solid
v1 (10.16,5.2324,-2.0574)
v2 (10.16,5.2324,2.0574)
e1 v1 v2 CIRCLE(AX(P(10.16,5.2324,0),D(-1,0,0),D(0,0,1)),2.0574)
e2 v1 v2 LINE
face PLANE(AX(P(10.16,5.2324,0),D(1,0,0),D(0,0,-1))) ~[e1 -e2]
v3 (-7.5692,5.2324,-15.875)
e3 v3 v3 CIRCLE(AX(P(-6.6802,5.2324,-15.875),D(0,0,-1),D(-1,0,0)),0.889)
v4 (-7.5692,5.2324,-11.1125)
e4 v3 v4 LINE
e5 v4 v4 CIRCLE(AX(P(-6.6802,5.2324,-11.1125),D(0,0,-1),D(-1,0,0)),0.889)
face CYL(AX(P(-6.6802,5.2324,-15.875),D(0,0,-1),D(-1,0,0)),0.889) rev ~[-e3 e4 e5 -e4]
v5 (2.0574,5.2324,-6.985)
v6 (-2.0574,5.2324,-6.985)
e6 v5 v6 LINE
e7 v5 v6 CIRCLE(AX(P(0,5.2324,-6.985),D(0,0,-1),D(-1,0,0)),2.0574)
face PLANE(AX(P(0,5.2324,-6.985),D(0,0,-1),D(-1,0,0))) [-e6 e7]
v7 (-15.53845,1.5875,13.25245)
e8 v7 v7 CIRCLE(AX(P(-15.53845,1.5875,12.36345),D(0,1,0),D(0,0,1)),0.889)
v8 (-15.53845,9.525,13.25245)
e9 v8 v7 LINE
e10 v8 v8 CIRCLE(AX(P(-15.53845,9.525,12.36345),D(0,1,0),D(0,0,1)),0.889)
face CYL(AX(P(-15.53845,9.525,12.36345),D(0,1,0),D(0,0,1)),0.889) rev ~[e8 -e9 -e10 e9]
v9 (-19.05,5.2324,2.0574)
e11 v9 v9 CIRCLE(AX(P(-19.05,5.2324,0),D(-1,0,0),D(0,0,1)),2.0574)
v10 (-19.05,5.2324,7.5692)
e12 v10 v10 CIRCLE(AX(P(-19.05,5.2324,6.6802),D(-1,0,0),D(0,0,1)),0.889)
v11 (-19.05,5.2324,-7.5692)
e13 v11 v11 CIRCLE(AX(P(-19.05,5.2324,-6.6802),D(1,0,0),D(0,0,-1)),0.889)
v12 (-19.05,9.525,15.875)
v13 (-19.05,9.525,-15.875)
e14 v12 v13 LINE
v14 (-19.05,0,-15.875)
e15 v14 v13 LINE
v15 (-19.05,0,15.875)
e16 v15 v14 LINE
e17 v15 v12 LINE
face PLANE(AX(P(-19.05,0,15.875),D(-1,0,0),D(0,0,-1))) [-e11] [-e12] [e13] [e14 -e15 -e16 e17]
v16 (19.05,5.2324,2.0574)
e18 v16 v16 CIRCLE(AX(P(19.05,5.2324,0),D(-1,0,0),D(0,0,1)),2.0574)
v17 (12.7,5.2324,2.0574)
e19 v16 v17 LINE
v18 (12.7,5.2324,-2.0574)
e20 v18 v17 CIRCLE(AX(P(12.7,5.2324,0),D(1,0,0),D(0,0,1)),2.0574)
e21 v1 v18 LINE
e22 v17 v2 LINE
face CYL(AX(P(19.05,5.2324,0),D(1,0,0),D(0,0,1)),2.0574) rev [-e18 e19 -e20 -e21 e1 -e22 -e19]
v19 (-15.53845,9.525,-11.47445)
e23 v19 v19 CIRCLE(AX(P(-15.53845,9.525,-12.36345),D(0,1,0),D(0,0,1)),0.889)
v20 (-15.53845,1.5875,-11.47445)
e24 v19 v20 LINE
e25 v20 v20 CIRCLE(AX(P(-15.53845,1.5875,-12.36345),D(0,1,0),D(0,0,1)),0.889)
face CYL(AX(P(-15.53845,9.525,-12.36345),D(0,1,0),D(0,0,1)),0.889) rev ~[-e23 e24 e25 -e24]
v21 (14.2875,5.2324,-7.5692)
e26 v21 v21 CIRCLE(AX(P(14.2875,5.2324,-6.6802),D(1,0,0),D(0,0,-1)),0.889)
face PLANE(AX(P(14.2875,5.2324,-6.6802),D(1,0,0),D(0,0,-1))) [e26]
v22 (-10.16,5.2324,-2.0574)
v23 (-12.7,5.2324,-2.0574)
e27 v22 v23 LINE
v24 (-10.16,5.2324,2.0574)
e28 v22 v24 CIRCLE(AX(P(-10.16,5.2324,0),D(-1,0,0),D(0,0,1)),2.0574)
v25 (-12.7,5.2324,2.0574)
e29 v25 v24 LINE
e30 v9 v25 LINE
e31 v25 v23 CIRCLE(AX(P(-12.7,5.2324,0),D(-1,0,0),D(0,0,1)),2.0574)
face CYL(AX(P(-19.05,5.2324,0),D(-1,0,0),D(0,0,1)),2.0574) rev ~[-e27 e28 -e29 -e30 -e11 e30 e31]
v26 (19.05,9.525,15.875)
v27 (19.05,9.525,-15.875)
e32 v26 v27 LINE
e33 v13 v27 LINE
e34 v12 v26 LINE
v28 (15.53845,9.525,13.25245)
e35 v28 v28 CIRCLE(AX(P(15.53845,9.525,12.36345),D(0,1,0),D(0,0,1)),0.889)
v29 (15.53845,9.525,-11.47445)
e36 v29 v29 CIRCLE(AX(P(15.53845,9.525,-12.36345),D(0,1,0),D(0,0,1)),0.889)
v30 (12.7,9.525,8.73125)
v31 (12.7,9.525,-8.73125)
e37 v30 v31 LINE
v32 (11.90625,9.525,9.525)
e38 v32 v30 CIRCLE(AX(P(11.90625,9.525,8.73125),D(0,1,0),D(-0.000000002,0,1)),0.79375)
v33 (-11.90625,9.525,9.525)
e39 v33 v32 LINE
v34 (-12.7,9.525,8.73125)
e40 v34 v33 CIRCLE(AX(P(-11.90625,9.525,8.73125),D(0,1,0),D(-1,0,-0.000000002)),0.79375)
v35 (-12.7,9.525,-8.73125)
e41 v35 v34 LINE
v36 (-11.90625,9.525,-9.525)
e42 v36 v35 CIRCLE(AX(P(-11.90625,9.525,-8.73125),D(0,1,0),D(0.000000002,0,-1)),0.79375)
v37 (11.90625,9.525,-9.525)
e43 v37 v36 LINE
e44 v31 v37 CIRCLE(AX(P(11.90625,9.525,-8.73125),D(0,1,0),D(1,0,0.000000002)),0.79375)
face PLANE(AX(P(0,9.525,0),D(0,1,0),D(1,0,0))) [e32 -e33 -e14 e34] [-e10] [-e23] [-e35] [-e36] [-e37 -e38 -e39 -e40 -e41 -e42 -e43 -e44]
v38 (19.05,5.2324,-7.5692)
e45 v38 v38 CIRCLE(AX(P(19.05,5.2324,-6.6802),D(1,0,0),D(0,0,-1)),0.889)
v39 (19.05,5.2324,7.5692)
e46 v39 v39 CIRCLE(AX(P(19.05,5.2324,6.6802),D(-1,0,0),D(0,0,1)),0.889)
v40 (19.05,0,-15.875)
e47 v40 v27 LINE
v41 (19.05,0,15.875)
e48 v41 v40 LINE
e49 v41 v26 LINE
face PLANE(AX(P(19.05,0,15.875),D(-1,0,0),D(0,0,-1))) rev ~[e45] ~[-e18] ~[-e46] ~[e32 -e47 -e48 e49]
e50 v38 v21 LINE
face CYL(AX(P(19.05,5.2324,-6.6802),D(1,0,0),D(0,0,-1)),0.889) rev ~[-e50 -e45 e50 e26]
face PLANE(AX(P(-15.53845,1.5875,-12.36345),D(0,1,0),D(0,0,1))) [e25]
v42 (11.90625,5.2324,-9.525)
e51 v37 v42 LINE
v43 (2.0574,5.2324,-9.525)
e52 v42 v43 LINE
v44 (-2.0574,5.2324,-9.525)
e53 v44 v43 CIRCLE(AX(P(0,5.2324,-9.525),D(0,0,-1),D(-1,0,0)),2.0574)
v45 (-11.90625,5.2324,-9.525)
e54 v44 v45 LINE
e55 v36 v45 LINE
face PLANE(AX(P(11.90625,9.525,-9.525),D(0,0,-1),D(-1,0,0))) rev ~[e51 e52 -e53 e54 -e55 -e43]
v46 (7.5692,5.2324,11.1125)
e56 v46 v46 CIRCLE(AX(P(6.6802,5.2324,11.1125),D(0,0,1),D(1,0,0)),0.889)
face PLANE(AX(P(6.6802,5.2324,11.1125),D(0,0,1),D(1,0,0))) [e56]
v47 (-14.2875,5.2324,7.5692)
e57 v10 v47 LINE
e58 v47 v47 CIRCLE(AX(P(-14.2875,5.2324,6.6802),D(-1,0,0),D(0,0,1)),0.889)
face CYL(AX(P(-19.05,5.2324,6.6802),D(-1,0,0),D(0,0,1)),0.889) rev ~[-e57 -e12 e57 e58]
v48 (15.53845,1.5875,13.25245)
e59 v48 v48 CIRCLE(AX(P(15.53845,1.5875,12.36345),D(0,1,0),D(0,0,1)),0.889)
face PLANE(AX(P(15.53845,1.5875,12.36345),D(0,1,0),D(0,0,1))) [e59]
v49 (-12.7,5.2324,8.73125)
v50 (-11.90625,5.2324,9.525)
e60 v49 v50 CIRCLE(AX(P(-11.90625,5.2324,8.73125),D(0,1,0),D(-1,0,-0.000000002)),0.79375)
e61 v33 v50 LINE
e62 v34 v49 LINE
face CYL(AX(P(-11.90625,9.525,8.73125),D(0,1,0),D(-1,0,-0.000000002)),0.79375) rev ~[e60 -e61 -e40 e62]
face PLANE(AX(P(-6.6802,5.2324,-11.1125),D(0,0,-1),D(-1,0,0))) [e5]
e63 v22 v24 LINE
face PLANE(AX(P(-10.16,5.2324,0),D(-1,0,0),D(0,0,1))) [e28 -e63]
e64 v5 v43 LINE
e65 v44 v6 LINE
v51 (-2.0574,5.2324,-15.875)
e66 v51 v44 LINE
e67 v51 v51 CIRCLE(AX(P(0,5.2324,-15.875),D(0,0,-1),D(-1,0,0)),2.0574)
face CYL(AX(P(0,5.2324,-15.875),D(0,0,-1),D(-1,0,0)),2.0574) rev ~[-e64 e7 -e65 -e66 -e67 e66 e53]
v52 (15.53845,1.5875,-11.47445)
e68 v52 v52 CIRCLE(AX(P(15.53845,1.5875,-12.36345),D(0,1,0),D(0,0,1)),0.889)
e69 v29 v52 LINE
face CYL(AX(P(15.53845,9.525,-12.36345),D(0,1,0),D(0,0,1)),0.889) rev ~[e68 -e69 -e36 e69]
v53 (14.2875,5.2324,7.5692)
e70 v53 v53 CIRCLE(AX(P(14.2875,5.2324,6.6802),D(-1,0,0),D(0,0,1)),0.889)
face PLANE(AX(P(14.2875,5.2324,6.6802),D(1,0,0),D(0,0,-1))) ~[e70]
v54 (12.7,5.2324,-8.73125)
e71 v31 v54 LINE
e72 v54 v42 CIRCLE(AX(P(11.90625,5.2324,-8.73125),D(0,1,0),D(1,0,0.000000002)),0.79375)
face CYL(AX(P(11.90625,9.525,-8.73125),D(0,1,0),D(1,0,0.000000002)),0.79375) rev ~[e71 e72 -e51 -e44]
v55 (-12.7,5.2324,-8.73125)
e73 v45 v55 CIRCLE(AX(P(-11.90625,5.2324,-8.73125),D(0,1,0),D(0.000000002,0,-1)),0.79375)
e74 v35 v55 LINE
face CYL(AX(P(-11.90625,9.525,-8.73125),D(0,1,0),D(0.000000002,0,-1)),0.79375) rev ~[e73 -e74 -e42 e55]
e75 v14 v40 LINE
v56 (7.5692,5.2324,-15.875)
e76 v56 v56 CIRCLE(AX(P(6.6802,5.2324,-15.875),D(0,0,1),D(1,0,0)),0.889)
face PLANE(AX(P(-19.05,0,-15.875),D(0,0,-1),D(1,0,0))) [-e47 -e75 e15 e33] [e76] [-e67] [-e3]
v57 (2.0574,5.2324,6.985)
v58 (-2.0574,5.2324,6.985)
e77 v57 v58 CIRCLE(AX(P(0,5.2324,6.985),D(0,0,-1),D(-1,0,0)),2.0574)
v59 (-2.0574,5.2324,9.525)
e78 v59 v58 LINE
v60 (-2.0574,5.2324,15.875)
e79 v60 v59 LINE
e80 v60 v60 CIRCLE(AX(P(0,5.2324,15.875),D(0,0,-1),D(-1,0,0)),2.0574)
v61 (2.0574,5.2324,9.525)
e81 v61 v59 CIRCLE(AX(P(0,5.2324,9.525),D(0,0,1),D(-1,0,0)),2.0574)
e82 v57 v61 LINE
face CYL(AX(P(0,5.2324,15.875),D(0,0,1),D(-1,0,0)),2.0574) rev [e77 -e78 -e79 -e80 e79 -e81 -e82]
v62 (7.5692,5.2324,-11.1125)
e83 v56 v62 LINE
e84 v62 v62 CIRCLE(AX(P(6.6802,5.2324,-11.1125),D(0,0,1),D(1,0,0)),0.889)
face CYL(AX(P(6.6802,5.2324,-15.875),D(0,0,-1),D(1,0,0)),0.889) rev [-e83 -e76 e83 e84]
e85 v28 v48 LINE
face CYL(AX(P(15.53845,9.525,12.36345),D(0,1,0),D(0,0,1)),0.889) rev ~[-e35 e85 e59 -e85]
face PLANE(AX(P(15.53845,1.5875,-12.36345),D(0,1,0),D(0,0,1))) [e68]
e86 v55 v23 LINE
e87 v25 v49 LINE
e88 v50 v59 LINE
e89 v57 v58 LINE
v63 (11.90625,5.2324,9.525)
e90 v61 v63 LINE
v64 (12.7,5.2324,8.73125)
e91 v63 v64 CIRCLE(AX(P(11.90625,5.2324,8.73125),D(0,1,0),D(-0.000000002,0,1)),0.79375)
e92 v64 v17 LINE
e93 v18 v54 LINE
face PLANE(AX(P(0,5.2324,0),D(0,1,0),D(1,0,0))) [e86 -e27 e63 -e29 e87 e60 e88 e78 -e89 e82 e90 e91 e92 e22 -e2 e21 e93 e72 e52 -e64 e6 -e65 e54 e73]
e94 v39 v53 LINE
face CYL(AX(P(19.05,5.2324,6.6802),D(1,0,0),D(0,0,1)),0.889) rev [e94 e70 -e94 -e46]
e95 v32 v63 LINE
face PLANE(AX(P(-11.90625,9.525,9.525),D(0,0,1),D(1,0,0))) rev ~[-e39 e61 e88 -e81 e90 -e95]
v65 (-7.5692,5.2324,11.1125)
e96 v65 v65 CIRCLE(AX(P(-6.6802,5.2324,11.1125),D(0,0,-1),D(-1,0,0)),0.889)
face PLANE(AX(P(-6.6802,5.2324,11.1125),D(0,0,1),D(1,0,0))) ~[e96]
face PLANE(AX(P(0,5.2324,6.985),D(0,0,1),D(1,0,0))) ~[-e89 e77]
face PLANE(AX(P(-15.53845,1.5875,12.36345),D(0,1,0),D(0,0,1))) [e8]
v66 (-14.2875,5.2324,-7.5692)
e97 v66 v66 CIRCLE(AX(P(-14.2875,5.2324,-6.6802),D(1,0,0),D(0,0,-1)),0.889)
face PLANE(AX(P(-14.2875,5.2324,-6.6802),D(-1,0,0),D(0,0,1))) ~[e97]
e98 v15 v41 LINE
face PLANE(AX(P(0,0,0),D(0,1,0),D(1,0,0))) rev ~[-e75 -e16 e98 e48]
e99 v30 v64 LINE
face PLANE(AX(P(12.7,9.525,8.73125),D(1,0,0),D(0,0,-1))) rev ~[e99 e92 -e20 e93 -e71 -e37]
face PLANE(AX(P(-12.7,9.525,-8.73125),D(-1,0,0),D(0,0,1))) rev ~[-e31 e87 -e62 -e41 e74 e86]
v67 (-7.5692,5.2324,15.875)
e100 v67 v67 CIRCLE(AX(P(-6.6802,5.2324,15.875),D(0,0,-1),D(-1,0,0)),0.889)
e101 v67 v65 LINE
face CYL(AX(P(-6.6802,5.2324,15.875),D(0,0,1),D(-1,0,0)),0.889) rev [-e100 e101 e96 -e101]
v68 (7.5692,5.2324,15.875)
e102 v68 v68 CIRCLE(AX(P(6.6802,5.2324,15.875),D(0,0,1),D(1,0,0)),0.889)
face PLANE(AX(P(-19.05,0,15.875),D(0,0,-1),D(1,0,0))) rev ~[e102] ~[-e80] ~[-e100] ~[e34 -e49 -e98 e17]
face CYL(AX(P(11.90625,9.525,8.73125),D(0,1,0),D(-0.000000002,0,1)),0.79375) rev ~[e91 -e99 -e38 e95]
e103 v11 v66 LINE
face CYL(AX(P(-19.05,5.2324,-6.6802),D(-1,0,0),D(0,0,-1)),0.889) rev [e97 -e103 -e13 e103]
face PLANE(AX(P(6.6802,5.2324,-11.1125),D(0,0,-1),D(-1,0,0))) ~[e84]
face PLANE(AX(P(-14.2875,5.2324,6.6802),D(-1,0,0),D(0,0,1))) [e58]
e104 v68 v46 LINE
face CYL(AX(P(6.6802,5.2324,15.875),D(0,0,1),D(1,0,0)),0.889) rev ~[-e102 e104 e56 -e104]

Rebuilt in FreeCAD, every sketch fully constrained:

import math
import FreeCAD as App
import Part
import Sketcher
Q = App.Units.Quantity


def add_polygon(sketch, points):
    """Adds a closed chain of lines whose ends are joined by coincident constraints."""
    first, n = sketch.GeometryCount, len(points)
    for a, b in zip(points, points[1:] + points[:1]):
        sketch.addGeometry(Part.LineSegment(App.Vector(*a, 0), App.Vector(*b, 0)), False)
    for i in range(n):
        sketch.addConstraint(Sketcher.Constraint("Coincident", first + i, 2, first + (i + 1) % n, 1))

doc = App.newDocument("Part")
body = doc.addObject("PartDesign::Body", "Body")

sketch1 = body.newObject("Sketcher::SketchObject", "Sketch")
sketch1.AttachmentSupport = (doc.getObject("XZ_Plane"), [""])
sketch1.MapMode = "FlatFace"
add_polygon(sketch1, [(-19, -16), (-19, 16), (19, 16), (19, -16)])
sketch1.addConstraint([
    Sketcher.Constraint("Vertical", 0),
    Sketcher.Constraint("Horizontal", 1),
    Sketcher.Constraint("Vertical", 2),
    Sketcher.Constraint("Horizontal", 3),
    Sketcher.Constraint("Symmetric", 0, 2, 2, 2, -1, 1),
    Sketcher.Constraint("DistanceX", 1, 1, 1, 2, Q("1.5 in")),
    Sketcher.Constraint("DistanceY", 0, 1, 0, 2, Q("1.25 in")),
])
pad1 = body.newObject("PartDesign::Pad", "Pad")
pad1.Profile = sketch1
pad1.Length = Q("0.375 in")
pad1.Reversed = True

sketch2 = body.newObject("Sketcher::SketchObject", "Sketch001")
sketch2.AttachmentSupport = (doc.getObject("XZ_Plane"), [""])
sketch2.MapMode = "FlatFace"
sketch2.AttachmentOffset = App.Placement(App.Vector(0, 0, -0.375 * 25.4), App.Rotation())
sketch2.addGeometry([
    Part.LineSegment(App.Vector(-11.9, 9.5, 0), App.Vector(11.9, 9.5, 0)),
    Part.ArcOfCircle(Part.Circle(App.Vector(11.9, 8.7, 0), App.Vector(0, 0, 1), 0.8), math.radians(0), math.radians(90)),
    Part.LineSegment(App.Vector(12.7, 8.7, 0), App.Vector(12.7, -8.7, 0)),
    Part.ArcOfCircle(Part.Circle(App.Vector(11.9, -8.7, 0), App.Vector(0, 0, 1), 0.8), math.radians(-90), math.radians(0)),
    Part.LineSegment(App.Vector(11.9, -9.5, 0), App.Vector(-11.9, -9.5, 0)),
    Part.ArcOfCircle(Part.Circle(App.Vector(-11.9, -8.7, 0), App.Vector(0, 0, 1), 0.8), math.radians(180), math.radians(270)),
    Part.LineSegment(App.Vector(-12.7, -8.7, 0), App.Vector(-12.7, 8.7, 0)),
    Part.ArcOfCircle(Part.Circle(App.Vector(-11.9, 8.7, 0), App.Vector(0, 0, 1), 0.8), math.radians(90), math.radians(180)),
], False)
sketch2.addConstraint([
    Sketcher.Constraint("Tangent", 0, 2, 1, 2),
    Sketcher.Constraint("Tangent", 1, 1, 2, 1),
    Sketcher.Constraint("Tangent", 2, 2, 3, 2),
    Sketcher.Constraint("Tangent", 3, 1, 4, 1),
    Sketcher.Constraint("Tangent", 4, 2, 5, 2),
    Sketcher.Constraint("Tangent", 5, 1, 6, 1),
    Sketcher.Constraint("Tangent", 6, 2, 7, 2),
    Sketcher.Constraint("Tangent", 7, 1, 0, 1),
    Sketcher.Constraint("Horizontal", 0),
    Sketcher.Constraint("Vertical", 2),
    Sketcher.Constraint("Horizontal", 4),
    Sketcher.Constraint("Vertical", 6),
    Sketcher.Constraint("Equal", 1, 3),
    Sketcher.Constraint("Equal", 3, 5),
    Sketcher.Constraint("Equal", 5, 7),
    Sketcher.Constraint("Symmetric", 1, 3, 5, 3, -1, 1),
    Sketcher.Constraint("Radius", 1, Q("0.03125 in")),
    Sketcher.Constraint("DistanceX", -1, 1, 1, 1, Q("0.5 in")),
    Sketcher.Constraint("DistanceY", 2, 2, 2, 1, Q("0.6875 in")),
])
pocket1 = body.newObject("PartDesign::Pocket", "Pocket")
pocket1.Profile = sketch2
pocket1.Length = Q("0.169 in")
pocket1.Reversed = True

sketch3 = body.newObject("Sketcher::SketchObject", "Sketch002")
sketch3.AttachmentSupport = (doc.getObject("YZ_Plane"), [""])
sketch3.MapMode = "FlatFace"
sketch3.AttachmentOffset = App.Placement(App.Vector(0, 0, -0.75 * 25.4), App.Rotation())
sketch3.addGeometry(Part.Circle(App.Vector(5.2, 0, 0), App.Vector(0, 0, 1), 2.1), False)
sketch3.addConstraint([
    Sketcher.Constraint("PointOnObject", 0, 3, -1),
    Sketcher.Constraint("Diameter", 0, Q("0.162 in")),
    Sketcher.Constraint("DistanceX", -1, 1, 0, 3, Q("0.206 in")),
])
pocket2 = body.newObject("PartDesign::Pocket", "Pocket001")
pocket2.Profile = sketch3
pocket2.Length = Q("0.35 in")
pocket2.Reversed = True
doc.recompute()

mirrored = body.newObject("PartDesign::Mirrored", "Mirrored")
mirrored.Originals = [pocket2]
mirrored.MirrorPlane = (doc.getObject("YZ_Plane"), [""])
body.Tip = mirrored

sketch4 = body.newObject("Sketcher::SketchObject", "Sketch003")
sketch4.AttachmentSupport = (doc.getObject("XY_Plane"), [""])
sketch4.MapMode = "FlatFace"
sketch4.AttachmentOffset = App.Placement(App.Vector(0, 0, -0.625 * 25.4), App.Rotation())
sketch4.addGeometry(Part.Circle(App.Vector(0, 5.2, 0), App.Vector(0, 0, 1), 2.1), False)
sketch4.addConstraint([
    Sketcher.Constraint("PointOnObject", 0, 3, -2),
    Sketcher.Constraint("Diameter", 0, Q("0.162 in")),
    Sketcher.Constraint("DistanceY", -1, 1, 0, 3, Q("0.206 in")),
])
pocket3 = body.newObject("PartDesign::Pocket", "Pocket002")
pocket3.Profile = sketch4
pocket3.Length = Q("0.35 in")
pocket3.Reversed = True
doc.recompute()

mirrored2 = body.newObject("PartDesign::Mirrored", "Mirrored001")
mirrored2.Originals = [pocket3]
mirrored2.MirrorPlane = (doc.getObject("XY_Plane"), [""])
body.Tip = mirrored2

sketch5 = body.newObject("Sketcher::SketchObject", "Sketch004")
sketch5.AttachmentSupport = (doc.getObject("YZ_Plane"), [""])
sketch5.MapMode = "FlatFace"
sketch5.AttachmentOffset = App.Placement(App.Vector(0, 0, 0.75 * 25.4), App.Rotation())
sketch5.addGeometry(Part.Circle(App.Vector(5.2, -6.7, 0), App.Vector(0, 0, 1), 0.9), False)
sketch5.addConstraint([
    Sketcher.Constraint("Diameter", 0, Q("0.07 in")),
    Sketcher.Constraint("DistanceX", -1, 1, 0, 3, Q("0.206 in")),
    Sketcher.Constraint("DistanceY", 0, 3, -1, 1, Q("0.263 in")),
])
pocket4 = body.newObject("PartDesign::Pocket", "Pocket003")
pocket4.Profile = sketch5
pocket4.Length = Q("0.1875 in")
doc.recompute()

mirrored3 = body.newObject("PartDesign::Mirrored", "Mirrored002")
mirrored3.Originals = [pocket4]
mirrored3.MirrorPlane = (doc.getObject("XY_Plane"), [""])
body.Tip = mirrored3
doc.recompute()

mirrored4 = body.newObject("PartDesign::Mirrored", "Mirrored003")
mirrored4.Originals = [pocket4]
mirrored4.MirrorPlane = (doc.getObject("YZ_Plane"), [""])
body.Tip = mirrored4

sketch6 = body.newObject("Sketcher::SketchObject", "Sketch005")
sketch6.AttachmentSupport = (doc.getObject("YZ_Plane"), [""])
sketch6.MapMode = "FlatFace"
sketch6.AttachmentOffset = App.Placement(App.Vector(0, 0, -0.75 * 25.4), App.Rotation())
sketch6.addGeometry(Part.Circle(App.Vector(5.2, 6.7, 0), App.Vector(0, 0, 1), 0.9), False)
sketch6.addConstraint([
    Sketcher.Constraint("Diameter", 0, Q("0.07 in")),
    Sketcher.Constraint("DistanceX", -1, 1, 0, 3, Q("0.206 in")),
    Sketcher.Constraint("DistanceY", -1, 1, 0, 3, Q("0.263 in")),
])
pocket5 = body.newObject("PartDesign::Pocket", "Pocket004")
pocket5.Profile = sketch6
pocket5.Length = Q("0.1875 in")
pocket5.Reversed = True

sketch7 = body.newObject("Sketcher::SketchObject", "Sketch006")
sketch7.AttachmentSupport = (doc.getObject("XY_Plane"), [""])
sketch7.MapMode = "FlatFace"
sketch7.AttachmentOffset = App.Placement(App.Vector(0, 0, 0.625 * 25.4), App.Rotation())
sketch7.addGeometry(Part.Circle(App.Vector(6.7, 5.2, 0), App.Vector(0, 0, 1), 0.9), False)
sketch7.addConstraint([
    Sketcher.Constraint("Diameter", 0, Q("0.07 in")),
    Sketcher.Constraint("DistanceX", -1, 1, 0, 3, Q("0.263 in")),
    Sketcher.Constraint("DistanceY", -1, 1, 0, 3, Q("0.206 in")),
])
pocket6 = body.newObject("PartDesign::Pocket", "Pocket005")
pocket6.Profile = sketch7
pocket6.Length = Q("0.1875 in")
doc.recompute()

mirrored5 = body.newObject("PartDesign::Mirrored", "Mirrored004")
mirrored5.Originals = [pocket6]
mirrored5.MirrorPlane = (doc.getObject("YZ_Plane"), [""])
body.Tip = mirrored5
doc.recompute()

mirrored6 = body.newObject("PartDesign::Mirrored", "Mirrored005")
mirrored6.Originals = [pocket6]
mirrored6.MirrorPlane = (doc.getObject("XY_Plane"), [""])
body.Tip = mirrored6

sketch8 = body.newObject("Sketcher::SketchObject", "Sketch007")
sketch8.AttachmentSupport = (doc.getObject("XY_Plane"), [""])
sketch8.MapMode = "FlatFace"
sketch8.AttachmentOffset = App.Placement(App.Vector(0, 0, -0.625 * 25.4), App.Rotation())
sketch8.addGeometry(Part.Circle(App.Vector(-6.7, 5.2, 0), App.Vector(0, 0, 1), 0.9), False)
sketch8.addConstraint([
    Sketcher.Constraint("Diameter", 0, Q("0.07 in")),
    Sketcher.Constraint("DistanceX", 0, 3, -1, 1, Q("0.263 in")),
    Sketcher.Constraint("DistanceY", -1, 1, 0, 3, Q("0.206 in")),
])
pocket7 = body.newObject("PartDesign::Pocket", "Pocket006")
pocket7.Profile = sketch8
pocket7.Length = Q("0.1875 in")
pocket7.Reversed = True

sketch9 = body.newObject("Sketcher::SketchObject", "Sketch008")
sketch9.AttachmentSupport = (doc.getObject("XZ_Plane"), [""])
sketch9.MapMode = "FlatFace"
sketch9.AttachmentOffset = App.Placement(App.Vector(0, 0, -0.375 * 25.4), App.Rotation())
sketch9.addGeometry([
    Part.Circle(App.Vector(-15.5, -12.4, 0), App.Vector(0, 0, 1), 0.9),
    Part.Circle(App.Vector(15.5, -12.4, 0), App.Vector(0, 0, 1), 0.9),
    Part.Circle(App.Vector(-15.5, 12.4, 0), App.Vector(0, 0, 1), 0.9),
    Part.Circle(App.Vector(15.5, 12.4, 0), App.Vector(0, 0, 1), 0.9),
], False)
sketch9.addConstraint([
    Sketcher.Constraint("Equal", 0, 1),
    Sketcher.Constraint("Equal", 1, 2),
    Sketcher.Constraint("Equal", 2, 3),
    Sketcher.Constraint("Symmetric", 1, 3, 2, 3, -1, 1),
    Sketcher.Constraint("Symmetric", 0, 3, 3, 3, -1, 1),
    Sketcher.Constraint("Symmetric", 0, 3, 1, 3, -2),
    Sketcher.Constraint("Diameter", 0, Q("0.07 in")),
    Sketcher.Constraint("DistanceX", 0, 3, 1, 3, Q("1.2235 in")),
    Sketcher.Constraint("DistanceY", 0, 3, 2, 3, Q("0.9735 in")),
])
pocket8 = body.newObject("PartDesign::Pocket", "Pocket007")
pocket8.Profile = sketch9
pocket8.Length = Q("0.3125 in")
pocket8.Reversed = True

doc.recompute()
